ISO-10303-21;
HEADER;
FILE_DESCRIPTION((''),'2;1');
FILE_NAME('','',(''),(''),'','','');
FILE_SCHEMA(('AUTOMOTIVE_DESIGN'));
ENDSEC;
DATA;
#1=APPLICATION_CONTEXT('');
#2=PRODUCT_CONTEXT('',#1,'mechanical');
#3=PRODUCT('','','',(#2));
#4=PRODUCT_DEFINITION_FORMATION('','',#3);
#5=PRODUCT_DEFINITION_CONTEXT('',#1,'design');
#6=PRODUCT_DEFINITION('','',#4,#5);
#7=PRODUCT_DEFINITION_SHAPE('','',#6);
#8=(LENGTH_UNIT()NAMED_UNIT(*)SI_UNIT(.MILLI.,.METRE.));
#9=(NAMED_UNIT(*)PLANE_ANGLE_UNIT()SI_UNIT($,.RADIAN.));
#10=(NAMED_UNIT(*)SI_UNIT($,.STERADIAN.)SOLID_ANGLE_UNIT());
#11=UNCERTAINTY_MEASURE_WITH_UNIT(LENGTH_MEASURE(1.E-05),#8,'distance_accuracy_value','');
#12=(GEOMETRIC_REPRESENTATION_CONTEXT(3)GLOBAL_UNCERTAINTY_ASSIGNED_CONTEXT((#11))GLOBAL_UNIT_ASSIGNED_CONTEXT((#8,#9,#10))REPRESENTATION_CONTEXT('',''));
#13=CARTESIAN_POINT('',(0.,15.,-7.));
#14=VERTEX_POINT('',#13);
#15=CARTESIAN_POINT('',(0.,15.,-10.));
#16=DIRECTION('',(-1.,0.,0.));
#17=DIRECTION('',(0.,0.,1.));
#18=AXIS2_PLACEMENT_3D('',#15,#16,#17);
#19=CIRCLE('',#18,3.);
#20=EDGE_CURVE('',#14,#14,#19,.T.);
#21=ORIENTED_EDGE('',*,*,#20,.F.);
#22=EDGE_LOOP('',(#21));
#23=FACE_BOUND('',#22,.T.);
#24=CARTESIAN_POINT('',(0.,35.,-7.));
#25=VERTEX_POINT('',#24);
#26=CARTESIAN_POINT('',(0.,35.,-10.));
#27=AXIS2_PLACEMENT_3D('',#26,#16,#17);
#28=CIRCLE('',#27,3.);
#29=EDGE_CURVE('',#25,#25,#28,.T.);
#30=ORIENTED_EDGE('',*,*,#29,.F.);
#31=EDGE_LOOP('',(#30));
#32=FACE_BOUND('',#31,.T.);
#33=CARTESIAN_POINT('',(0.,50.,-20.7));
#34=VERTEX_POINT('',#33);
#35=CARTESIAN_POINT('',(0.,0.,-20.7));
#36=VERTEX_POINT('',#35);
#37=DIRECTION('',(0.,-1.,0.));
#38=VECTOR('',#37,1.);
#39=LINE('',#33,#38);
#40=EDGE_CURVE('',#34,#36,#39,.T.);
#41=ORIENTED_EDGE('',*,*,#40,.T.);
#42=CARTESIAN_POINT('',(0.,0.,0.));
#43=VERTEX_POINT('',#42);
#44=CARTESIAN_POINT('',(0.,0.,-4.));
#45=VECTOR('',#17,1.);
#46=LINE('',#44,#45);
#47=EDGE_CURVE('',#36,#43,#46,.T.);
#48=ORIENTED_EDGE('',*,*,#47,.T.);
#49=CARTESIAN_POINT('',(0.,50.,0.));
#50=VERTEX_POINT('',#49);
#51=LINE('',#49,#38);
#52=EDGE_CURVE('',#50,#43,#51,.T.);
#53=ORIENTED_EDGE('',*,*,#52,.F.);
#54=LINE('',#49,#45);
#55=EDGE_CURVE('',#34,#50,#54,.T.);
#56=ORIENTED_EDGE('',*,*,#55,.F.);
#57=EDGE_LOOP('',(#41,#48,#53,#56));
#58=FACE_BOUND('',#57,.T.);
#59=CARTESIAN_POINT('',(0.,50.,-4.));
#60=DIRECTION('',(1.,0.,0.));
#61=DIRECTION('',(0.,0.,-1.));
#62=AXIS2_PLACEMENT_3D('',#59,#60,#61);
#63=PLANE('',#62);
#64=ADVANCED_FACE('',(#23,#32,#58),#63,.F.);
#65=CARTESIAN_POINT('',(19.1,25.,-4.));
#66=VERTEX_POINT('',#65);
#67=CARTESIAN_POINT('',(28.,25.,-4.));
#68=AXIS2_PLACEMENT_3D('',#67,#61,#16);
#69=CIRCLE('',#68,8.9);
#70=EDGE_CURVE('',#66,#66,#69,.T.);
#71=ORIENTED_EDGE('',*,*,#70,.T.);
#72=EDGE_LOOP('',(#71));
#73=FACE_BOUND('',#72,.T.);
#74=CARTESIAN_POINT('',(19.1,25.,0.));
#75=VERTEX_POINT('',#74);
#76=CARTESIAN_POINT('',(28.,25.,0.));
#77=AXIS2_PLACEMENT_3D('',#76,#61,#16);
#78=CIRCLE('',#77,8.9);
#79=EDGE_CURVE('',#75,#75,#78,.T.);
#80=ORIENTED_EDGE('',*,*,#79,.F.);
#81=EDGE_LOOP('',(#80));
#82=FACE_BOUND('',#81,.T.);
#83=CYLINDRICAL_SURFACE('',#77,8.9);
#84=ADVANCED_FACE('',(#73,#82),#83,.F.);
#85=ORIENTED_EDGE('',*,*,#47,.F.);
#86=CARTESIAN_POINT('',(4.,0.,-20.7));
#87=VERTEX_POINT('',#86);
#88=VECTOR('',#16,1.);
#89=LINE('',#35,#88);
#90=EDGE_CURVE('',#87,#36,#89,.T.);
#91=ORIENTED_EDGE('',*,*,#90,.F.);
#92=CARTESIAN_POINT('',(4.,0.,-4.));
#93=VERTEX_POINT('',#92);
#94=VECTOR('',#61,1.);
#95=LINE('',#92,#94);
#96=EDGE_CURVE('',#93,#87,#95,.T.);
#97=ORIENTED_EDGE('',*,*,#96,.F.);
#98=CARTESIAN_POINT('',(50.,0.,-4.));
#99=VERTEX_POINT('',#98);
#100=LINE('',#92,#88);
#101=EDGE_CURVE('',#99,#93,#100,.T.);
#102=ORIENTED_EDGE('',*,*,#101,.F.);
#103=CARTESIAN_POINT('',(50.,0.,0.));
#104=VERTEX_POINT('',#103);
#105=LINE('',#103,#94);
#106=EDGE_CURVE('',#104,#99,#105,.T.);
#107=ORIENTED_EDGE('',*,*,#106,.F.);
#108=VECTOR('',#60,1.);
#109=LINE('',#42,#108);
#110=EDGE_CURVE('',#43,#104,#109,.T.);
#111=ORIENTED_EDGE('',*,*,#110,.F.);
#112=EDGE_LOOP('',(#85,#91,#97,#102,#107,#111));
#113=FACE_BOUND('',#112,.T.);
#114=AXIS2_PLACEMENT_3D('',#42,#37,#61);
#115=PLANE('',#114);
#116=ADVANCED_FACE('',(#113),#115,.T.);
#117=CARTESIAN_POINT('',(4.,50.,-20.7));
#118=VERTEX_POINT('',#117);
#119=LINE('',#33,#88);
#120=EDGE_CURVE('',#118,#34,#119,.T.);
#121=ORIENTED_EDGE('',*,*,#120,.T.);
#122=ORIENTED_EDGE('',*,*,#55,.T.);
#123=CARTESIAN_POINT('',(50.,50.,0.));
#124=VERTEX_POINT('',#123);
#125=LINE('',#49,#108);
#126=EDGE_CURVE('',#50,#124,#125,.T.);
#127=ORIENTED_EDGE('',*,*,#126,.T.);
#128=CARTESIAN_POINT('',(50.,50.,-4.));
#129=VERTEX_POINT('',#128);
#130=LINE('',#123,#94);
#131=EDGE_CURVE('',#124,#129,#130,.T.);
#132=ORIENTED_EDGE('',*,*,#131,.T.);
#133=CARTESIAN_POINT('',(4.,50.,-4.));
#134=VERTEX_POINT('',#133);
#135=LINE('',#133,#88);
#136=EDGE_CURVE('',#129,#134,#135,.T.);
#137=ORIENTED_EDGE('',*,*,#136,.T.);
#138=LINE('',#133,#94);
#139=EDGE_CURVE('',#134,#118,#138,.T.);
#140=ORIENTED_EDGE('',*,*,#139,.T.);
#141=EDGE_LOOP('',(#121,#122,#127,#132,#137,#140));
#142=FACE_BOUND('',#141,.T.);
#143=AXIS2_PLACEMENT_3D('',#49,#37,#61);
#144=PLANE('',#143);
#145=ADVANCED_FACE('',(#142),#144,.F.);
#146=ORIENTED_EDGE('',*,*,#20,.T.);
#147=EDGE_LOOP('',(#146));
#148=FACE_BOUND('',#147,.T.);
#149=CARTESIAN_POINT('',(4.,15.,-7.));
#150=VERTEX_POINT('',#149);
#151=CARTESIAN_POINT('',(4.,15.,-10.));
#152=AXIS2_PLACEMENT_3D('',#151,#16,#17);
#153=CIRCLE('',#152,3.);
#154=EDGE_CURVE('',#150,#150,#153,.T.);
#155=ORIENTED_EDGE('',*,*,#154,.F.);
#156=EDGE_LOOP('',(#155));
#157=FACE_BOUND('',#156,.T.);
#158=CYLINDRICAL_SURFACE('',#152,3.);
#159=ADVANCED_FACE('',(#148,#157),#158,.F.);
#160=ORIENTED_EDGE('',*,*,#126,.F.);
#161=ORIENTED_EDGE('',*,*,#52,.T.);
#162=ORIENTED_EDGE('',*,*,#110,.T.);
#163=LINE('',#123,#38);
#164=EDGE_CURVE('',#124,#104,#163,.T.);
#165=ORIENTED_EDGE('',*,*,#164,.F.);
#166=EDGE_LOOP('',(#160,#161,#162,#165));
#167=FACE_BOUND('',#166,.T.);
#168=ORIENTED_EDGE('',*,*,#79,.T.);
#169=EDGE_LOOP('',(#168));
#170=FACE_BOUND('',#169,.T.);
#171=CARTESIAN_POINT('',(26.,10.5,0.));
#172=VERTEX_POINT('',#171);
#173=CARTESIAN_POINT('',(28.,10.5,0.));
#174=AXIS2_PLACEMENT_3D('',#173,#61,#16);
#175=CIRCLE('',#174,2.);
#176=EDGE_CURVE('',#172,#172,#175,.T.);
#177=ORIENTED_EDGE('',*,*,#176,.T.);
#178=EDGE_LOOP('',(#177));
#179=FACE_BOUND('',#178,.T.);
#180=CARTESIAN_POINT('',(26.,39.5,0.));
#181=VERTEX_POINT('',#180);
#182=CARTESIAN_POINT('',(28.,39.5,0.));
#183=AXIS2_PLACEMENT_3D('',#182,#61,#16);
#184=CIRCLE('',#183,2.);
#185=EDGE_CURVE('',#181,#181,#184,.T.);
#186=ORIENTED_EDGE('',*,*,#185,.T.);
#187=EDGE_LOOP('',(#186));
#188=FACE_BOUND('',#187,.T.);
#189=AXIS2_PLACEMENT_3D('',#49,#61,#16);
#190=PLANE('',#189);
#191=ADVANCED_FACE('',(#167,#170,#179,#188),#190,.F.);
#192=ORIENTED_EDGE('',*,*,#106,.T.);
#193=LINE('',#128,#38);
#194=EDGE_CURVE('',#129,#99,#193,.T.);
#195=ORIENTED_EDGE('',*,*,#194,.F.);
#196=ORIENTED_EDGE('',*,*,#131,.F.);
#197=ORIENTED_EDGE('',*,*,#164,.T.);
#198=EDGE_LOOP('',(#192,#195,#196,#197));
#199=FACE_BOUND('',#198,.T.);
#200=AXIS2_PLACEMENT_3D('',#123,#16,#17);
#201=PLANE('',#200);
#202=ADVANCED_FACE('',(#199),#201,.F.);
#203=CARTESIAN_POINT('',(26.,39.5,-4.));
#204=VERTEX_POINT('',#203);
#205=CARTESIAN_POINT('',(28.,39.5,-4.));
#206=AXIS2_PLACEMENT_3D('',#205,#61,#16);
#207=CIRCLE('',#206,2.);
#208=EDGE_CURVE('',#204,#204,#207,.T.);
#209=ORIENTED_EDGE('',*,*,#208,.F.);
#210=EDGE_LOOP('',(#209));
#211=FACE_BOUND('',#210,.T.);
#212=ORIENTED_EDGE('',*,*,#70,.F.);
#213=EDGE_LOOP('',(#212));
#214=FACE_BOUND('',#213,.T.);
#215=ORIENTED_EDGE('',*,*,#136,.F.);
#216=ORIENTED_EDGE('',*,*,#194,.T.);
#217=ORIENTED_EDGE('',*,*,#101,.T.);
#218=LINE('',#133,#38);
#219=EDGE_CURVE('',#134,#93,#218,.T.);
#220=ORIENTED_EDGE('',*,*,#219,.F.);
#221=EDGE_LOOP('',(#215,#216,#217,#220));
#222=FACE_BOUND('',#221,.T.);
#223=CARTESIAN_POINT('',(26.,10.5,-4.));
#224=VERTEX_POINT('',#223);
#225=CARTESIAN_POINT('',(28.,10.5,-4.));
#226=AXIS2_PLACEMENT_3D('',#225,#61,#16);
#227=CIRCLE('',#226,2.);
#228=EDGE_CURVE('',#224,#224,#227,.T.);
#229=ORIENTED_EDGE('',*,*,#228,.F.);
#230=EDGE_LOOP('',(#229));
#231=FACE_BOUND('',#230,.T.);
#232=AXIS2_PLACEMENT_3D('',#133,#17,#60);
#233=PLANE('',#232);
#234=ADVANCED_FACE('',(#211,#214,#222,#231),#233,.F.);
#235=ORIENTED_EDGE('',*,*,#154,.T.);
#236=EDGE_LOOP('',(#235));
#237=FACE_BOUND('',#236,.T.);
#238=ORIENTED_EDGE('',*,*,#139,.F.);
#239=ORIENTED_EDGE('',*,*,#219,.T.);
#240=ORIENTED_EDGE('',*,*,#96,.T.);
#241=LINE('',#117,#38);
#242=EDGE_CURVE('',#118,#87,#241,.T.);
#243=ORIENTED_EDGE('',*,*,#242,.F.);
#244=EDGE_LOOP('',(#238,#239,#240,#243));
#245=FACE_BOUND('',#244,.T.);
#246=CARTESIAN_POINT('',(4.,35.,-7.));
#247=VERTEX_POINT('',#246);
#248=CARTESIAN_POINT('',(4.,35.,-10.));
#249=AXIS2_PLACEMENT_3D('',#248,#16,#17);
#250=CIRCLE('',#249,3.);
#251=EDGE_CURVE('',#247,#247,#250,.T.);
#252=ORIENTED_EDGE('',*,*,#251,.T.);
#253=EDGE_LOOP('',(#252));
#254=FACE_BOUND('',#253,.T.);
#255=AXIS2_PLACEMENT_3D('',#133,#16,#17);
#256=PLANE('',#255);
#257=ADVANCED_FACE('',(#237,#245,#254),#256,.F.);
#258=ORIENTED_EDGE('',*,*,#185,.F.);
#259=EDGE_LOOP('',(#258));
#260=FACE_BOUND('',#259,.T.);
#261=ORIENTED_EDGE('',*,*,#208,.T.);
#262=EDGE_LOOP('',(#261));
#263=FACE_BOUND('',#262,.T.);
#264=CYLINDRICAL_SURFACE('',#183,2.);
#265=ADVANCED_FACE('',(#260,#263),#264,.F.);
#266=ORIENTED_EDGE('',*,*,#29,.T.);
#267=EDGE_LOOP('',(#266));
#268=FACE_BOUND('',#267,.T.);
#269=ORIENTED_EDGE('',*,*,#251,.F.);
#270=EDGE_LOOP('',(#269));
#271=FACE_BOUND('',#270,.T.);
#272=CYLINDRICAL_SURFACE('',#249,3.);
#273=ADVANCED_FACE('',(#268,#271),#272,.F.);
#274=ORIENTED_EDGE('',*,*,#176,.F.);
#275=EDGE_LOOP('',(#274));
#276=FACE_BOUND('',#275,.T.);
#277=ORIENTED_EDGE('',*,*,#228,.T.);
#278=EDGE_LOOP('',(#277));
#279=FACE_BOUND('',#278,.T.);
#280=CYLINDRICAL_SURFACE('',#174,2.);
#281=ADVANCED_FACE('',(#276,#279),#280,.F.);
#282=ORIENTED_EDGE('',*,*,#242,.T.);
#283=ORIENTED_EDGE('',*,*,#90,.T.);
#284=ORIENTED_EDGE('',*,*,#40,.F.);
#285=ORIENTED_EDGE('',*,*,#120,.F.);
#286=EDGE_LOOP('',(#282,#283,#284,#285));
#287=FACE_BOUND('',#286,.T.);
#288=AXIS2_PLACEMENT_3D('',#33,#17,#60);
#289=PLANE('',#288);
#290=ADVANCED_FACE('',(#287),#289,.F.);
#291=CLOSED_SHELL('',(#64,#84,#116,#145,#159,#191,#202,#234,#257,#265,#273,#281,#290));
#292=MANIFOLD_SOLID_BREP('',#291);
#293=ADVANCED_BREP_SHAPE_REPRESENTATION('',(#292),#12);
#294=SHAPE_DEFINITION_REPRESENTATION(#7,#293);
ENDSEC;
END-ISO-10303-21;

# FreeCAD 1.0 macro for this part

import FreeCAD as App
import Part
import Sketcher


def add_polygon(sketch, points):
    """Adds a closed chain of lines whose ends are joined by coincident constraints."""
    first, n = sketch.GeometryCount, len(points)
    for a, b in zip(points, points[1:] + points[:1]):
        sketch.addGeometry(Part.LineSegment(App.Vector(*a, 0), App.Vector(*b, 0)), False)
    for i in range(n):
        sketch.addConstraint(Sketcher.Constraint("Coincident", first + i, 2, first + (i + 1) % n, 1))

doc = App.newDocument("Part")
params = doc.addObject("Spreadsheet::Sheet", "Params")
for row, (alias, value) in enumerate([
    ("sketch1_width", "50 mm"),
    ("sketch1_width2", "46 mm"),
    ("sketch1_height", "16.7 mm"),
    ("pad1_length", "50 mm"),
    ("sketch2_diameter", "6 mm"),
    ("pocket1_length", "4 mm"),
    ("sketch3_diameter", "4 mm"),
    ("sketch3_diameter2", "17.8 mm"),
    ("pocket2_length", "4 mm"),
], start=1):
    params.set(f"A{row}", alias)
    params.set(f"B{row}", "=" + value)
    params.setAlias(f"B{row}", alias)

body = doc.addObject("PartDesign::Body", "Body")

# Sketch on XZ plane
sketch1 = body.newObject("Sketcher::SketchObject", "Sketch")
sketch1.AttachmentSupport = (doc.getObject("XZ_Plane"), [""])
sketch1.MapMode = "FlatFace"
add_polygon(sketch1, [(0, 0), (50, 0), (50, -4), (4, -4), (4, -20.7), (0, -20.7)])  # lines 0-5
sketch1.addConstraint(Sketcher.Constraint("Horizontal", 0))
sketch1.addConstraint(Sketcher.Constraint("Vertical", 1))
sketch1.addConstraint(Sketcher.Constraint("Horizontal", 2))
sketch1.addConstraint(Sketcher.Constraint("Vertical", 3))
sketch1.addConstraint(Sketcher.Constraint("Horizontal", 4))
sketch1.addConstraint(Sketcher.Constraint("Vertical", 5))
sketch1.addConstraint(Sketcher.Constraint("Coincident", 5, 2, -1, 1))
sketch1.addConstraint(Sketcher.Constraint("Equal", 4, 1))
sketch1.addConstraint(Sketcher.Constraint("DistanceX", 0, 1, 0, 2, 50.0))
sketch1.addConstraint(Sketcher.Constraint("DistanceX", 2, 2, 2, 1, 46.0))
sketch1.addConstraint(Sketcher.Constraint("DistanceY", 3, 2, 3, 1, 16.7))
sketch1.setExpression("Constraints[14]", "Params.sketch1_width")
sketch1.setExpression("Constraints[15]", "Params.sketch1_width2")
sketch1.setExpression("Constraints[16]", "Params.sketch1_height")
pad1 = body.newObject("PartDesign::Pad", "Pad")
pad1.Profile = sketch1
pad1.setExpression("Length", "Params.pad1_length")
pad1.Reversed = True

# Sketch on YZ plane
sketch2 = body.newObject("Sketcher::SketchObject", "Sketch001")
sketch2.AttachmentSupport = (doc.getObject("YZ_Plane"), [""])
sketch2.MapMode = "FlatFace"
sketch2.addGeometry(Part.Circle(App.Vector(35, -10, 0), App.Vector(0, 0, 1), 3), False)
sketch2.addGeometry(Part.Circle(App.Vector(15, -10, 0), App.Vector(0, 0, 1), 3), False)
sketch2.addConstraint(Sketcher.Constraint("Equal", 0, 1))
sketch2.addConstraint(Sketcher.Constraint("Horizontal", 0, 3, 1, 3))
sketch2.addConstraint(Sketcher.Constraint("Diameter", 0, 6.0))
sketch2.addConstraint(Sketcher.Constraint("DistanceX", -1, 1, 0, 3, 35.0))
sketch2.addConstraint(Sketcher.Constraint("DistanceY", 0, 3, -1, 1, 10.0))
sketch2.addConstraint(Sketcher.Constraint("DistanceX", -1, 1, 1, 3, 15.0))
sketch2.setExpression("Constraints[2]", "Params.sketch2_diameter")
pocket1 = body.newObject("PartDesign::Pocket", "Pocket")
pocket1.Profile = sketch2
pocket1.setExpression("Length", "Params.pocket1_length")
pocket1.Reversed = True

# Sketch on XY plane
sketch3 = body.newObject("Sketcher::SketchObject", "Sketch002")
sketch3.AttachmentSupport = (doc.getObject("XY_Plane"), [""])
sketch3.MapMode = "FlatFace"
sketch3.AttachmentOffset = App.Placement(App.Vector(0, 0, -4), App.Rotation())
sketch3.addGeometry(Part.Circle(App.Vector(28, 25, 0), App.Vector(0, 0, 1), 8.9), False)
sketch3.addGeometry(Part.Circle(App.Vector(28, 39.5, 0), App.Vector(0, 0, 1), 2), False)
sketch3.addGeometry(Part.Circle(App.Vector(28, 10.5, 0), App.Vector(0, 0, 1), 2), False)
sketch3.addConstraint(Sketcher.Constraint("Equal", 1, 2))
sketch3.addConstraint(Sketcher.Constraint("Vertical", 0, 3, 1, 3))
sketch3.addConstraint(Sketcher.Constraint("Vertical", 1, 3, 2, 3))
sketch3.addConstraint(Sketcher.Constraint("Diameter", 1, 4.0))
sketch3.addConstraint(Sketcher.Constraint("Diameter", 0, 17.8))
sketch3.addConstraint(Sketcher.Constraint("DistanceX", -1, 1, 0, 3, 28.0))
sketch3.addConstraint(Sketcher.Constraint("DistanceY", -1, 1, 0, 3, 25.0))
sketch3.addConstraint(Sketcher.Constraint("DistanceY", 2, 3, 1, 3, 29.0))
sketch3.addConstraint(Sketcher.Constraint("DistanceY", -1, 1, 1, 3, 39.5))
sketch3.setExpression("Constraints[3]", "Params.sketch3_diameter")
sketch3.setExpression("Constraints[4]", "Params.sketch3_diameter2")
pocket2 = body.newObject("PartDesign::Pocket", "Pocket001")
pocket2.Profile = sketch3
pocket2.setExpression("Length", "Params.pocket2_length")
pocket2.Reversed = True

doc.recompute()
